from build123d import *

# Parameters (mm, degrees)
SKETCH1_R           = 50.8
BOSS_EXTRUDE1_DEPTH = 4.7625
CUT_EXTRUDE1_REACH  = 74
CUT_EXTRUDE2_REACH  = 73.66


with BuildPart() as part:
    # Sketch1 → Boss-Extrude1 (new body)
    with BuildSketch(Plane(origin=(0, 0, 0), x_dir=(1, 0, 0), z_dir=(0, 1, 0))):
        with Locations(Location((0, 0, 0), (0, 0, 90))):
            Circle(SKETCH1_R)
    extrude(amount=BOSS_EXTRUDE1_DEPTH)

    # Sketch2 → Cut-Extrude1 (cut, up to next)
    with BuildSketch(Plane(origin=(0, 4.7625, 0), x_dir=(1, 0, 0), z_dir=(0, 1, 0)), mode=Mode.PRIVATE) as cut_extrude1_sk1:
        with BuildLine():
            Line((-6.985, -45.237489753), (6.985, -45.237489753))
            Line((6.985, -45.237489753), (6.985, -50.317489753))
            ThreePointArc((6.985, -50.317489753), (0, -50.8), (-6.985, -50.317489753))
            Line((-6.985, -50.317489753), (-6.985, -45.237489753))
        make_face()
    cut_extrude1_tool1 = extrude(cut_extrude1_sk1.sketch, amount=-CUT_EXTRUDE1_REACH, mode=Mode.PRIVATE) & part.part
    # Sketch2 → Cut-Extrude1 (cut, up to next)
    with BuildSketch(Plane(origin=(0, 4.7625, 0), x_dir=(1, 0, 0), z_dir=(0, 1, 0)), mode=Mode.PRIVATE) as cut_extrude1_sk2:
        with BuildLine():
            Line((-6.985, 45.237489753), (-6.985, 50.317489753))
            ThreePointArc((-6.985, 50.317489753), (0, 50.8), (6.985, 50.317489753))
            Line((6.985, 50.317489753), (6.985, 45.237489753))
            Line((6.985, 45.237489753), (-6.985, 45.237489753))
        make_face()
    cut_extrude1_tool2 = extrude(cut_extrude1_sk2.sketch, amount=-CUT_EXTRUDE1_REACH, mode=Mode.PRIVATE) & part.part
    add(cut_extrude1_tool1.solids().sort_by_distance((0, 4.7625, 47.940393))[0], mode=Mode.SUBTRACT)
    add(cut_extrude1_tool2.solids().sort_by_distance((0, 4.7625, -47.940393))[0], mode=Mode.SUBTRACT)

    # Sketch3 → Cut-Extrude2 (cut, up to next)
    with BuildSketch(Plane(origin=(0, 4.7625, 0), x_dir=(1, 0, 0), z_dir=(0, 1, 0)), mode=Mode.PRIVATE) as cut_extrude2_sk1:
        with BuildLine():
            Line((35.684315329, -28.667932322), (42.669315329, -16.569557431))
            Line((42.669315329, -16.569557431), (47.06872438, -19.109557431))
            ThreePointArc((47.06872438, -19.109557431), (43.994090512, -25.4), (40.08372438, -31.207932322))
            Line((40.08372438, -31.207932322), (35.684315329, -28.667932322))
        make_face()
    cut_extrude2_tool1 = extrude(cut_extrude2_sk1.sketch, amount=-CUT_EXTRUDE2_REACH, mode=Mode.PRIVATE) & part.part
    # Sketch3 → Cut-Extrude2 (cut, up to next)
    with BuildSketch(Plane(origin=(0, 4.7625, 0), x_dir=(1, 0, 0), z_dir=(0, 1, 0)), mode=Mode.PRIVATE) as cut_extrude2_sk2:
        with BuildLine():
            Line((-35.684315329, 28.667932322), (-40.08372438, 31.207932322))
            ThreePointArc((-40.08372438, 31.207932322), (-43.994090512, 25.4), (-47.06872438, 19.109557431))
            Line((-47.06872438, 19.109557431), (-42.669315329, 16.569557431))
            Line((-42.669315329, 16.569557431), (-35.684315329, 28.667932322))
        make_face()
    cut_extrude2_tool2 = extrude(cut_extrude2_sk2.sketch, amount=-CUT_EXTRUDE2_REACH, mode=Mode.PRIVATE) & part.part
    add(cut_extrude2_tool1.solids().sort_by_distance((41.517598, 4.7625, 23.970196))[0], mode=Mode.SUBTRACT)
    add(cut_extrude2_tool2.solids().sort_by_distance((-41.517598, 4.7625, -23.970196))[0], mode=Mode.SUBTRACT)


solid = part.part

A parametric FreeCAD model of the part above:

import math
import FreeCAD as App
import Part
import Sketcher
from FreeCAD import Vector
Q = App.Units.Quantity

doc = App.newDocument("Part")
body = doc.addObject("PartDesign::Body", "Body")

# Sketch on XZ plane
sketch1 = body.newObject("Sketcher::SketchObject", "Sketch")
sketch1.AttachmentSupport = (doc.getObject("XZ_Plane"), [""])
sketch1.MapMode = "FlatFace"
sketch1.addGeometry(Part.Circle(Vector(0, 0, 0), Vector(0, 0, 1), 51), False)
sketch1.addConstraint(Sketcher.Constraint("Coincident", 0, 3, -1, 1))
sketch1.addConstraint(Sketcher.Constraint("Diameter", 0, Q("4 in")))
pad1 = body.newObject("PartDesign::Pad", "Pad")
pad1.Profile = sketch1
pad1.Length = Q("0.1875 in")
pad1.Reversed = True

# Sketch on XZ plane
sketch2 = body.newObject("Sketcher::SketchObject", "Sketch001")
sketch2.AttachmentSupport = (doc.getObject("XZ_Plane"), [""])
sketch2.MapMode = "FlatFace"
sketch2.AttachmentOffset = App.Placement(Vector(0, 0, -0.1875 * 25.4), App.Rotation())
sketch2.addGeometry(Part.LineSegment(Vector(7, 45, 0), Vector(-7, 45, 0)), False)
sketch2.addGeometry(Part.LineSegment(Vector(-7, 45, 0), Vector(-7, 50, 0)), False)
sketch2.addGeometry(Part.ArcOfCircle(Part.Circle(Vector(0, 0, 0), Vector(0, 0, 1), 51), math.radians(82.1), math.radians(97.9)), False)
sketch2.addGeometry(Part.LineSegment(Vector(7, 50, 0), Vector(7, 45, 0)), False)
sketch2.addConstraint(Sketcher.Constraint("Coincident", 0, 2, 1, 1))
sketch2.addConstraint(Sketcher.Constraint("Coincident", 1, 2, 2, 2))
sketch2.addConstraint(Sketcher.Constraint("Coincident", 2, 1, 3, 1))
sketch2.addConstraint(Sketcher.Constraint("Coincident", 3, 2, 0, 1))
sketch2.addConstraint(Sketcher.Constraint("Horizontal", 0))
sketch2.addConstraint(Sketcher.Constraint("Vertical", 1))
sketch2.addConstraint(Sketcher.Constraint("Vertical", 3))
sketch2.addConstraint(Sketcher.Constraint("Coincident", 2, 3, -1, 1))
sketch2.addConstraint(Sketcher.Constraint("Horizontal", 1, 2, 2, 1))
sketch2.addConstraint(Sketcher.Constraint("Radius", 2, Q("2 in")))
sketch2.addConstraint(Sketcher.Constraint("DistanceY", 1, 1, 1, 2, Q("0.2 in")))
sketch2.addConstraint(Sketcher.Constraint("DistanceX", 0, 2, 0, 1, Q("0.55 in")))
pocket1 = body.newObject("PartDesign::Pocket", "Pocket")
pocket1.Profile = sketch2
pocket1.Type = "UpToFirst"
pocket1.Reversed = True

# Sketch on XZ plane
sketch3 = body.newObject("Sketcher::SketchObject", "Sketch002")
sketch3.AttachmentSupport = (doc.getObject("XZ_Plane"), [""])
sketch3.MapMode = "FlatFace"
sketch3.AttachmentOffset = App.Placement(Vector(0, 0, -0.1875 * 25.4), App.Rotation())
sketch3.addGeometry(Part.LineSegment(Vector(-7, -50, 0), Vector(-7, -45, 0)), False)
sketch3.addGeometry(Part.LineSegment(Vector(-7, -45, 0), Vector(7, -45, 0)), False)
sketch3.addGeometry(Part.LineSegment(Vector(7, -45, 0), Vector(7, -50, 0)), False)
sketch3.addGeometry(Part.ArcOfCircle(Part.Circle(Vector(0, 0, 0), Vector(0, 0, 1), 51), math.radians(-97.9), math.radians(-82.1)), False)
sketch3.addConstraint(Sketcher.Constraint("Coincident", 0, 2, 1, 1))
sketch3.addConstraint(Sketcher.Constraint("Coincident", 1, 2, 2, 1))
sketch3.addConstraint(Sketcher.Constraint("Coincident", 2, 2, 3, 2))
sketch3.addConstraint(Sketcher.Constraint("Coincident", 3, 1, 0, 1))
sketch3.addConstraint(Sketcher.Constraint("Vertical", 0))
sketch3.addConstraint(Sketcher.Constraint("Horizontal", 1))
sketch3.addConstraint(Sketcher.Constraint("Vertical", 2))
sketch3.addConstraint(Sketcher.Constraint("Coincident", 3, 3, -1, 1))
sketch3.addConstraint(Sketcher.Constraint("Horizontal", 2, 2, 3, 1))
sketch3.addConstraint(Sketcher.Constraint("Radius", 3, Q("2 in")))
sketch3.addConstraint(Sketcher.Constraint("DistanceY", 0, 1, 0, 2, Q("0.2 in")))
sketch3.addConstraint(Sketcher.Constraint("DistanceX", 1, 1, 1, 2, Q("0.55 in")))
pocket2 = body.newObject("PartDesign::Pocket", "Pocket001")
pocket2.Profile = sketch3
pocket2.Type = "UpToFirst"
pocket2.Reversed = True

# Sketch on XZ plane
sketch4 = body.newObject("Sketcher::SketchObject", "Sketch003")
sketch4.AttachmentSupport = (doc.getObject("XZ_Plane"), [""])
sketch4.MapMode = "FlatFace"
sketch4.AttachmentOffset = App.Placement(Vector(0, 0, -0.1875 * 25.4), App.Rotation())
sketch4.addGeometry(Part.LineSegment(Vector(43, 17, 0), Vector(36, 29, 0)), False)
sketch4.addGeometry(Part.LineSegment(Vector(36, 29, 0), Vector(40, 31, 0)), False)
sketch4.addGeometry(Part.ArcOfCircle(Part.Circle(Vector(0, 0, 0), Vector(0, 0, 1), 51), math.radians(22.1), math.radians(37.9)), False)
sketch4.addGeometry(Part.LineSegment(Vector(47, 19, 0), Vector(43, 17, 0)), False)
sketch4.addConstraint(Sketcher.Constraint("Coincident", 0, 2, 1, 1))
sketch4.addConstraint(Sketcher.Constraint("Coincident", 1, 2, 2, 2))
sketch4.addConstraint(Sketcher.Constraint("Coincident", 2, 1, 3, 1))
sketch4.addConstraint(Sketcher.Constraint("Coincident", 3, 2, 0, 1))
sketch4.addConstraint(Sketcher.Constraint("Coincident", 2, 3, -1, 1))
sketch4.addConstraint(Sketcher.Constraint("Perpendicular", 0, 1))
sketch4.addConstraint(Sketcher.Constraint("Parallel", 1, 3))
sketch4.addConstraint(Sketcher.Constraint("Equal", 1, 3))
sketch4.addConstraint(Sketcher.Constraint("Radius", 2, Q("2 in")))
sketch4.addConstraint(Sketcher.Constraint("Angle", 0, Q("120 deg")))
sketch4.addConstraint(Sketcher.Constraint("Distance", 1, Q("0.2 in")))
sketch4.addConstraint(Sketcher.Constraint("Distance", 0, Q("0.55 in")))
pocket3 = body.newObject("PartDesign::Pocket", "Pocket002")
pocket3.Profile = sketch4
pocket3.Type = "UpToFirst"
pocket3.Reversed = True

# Sketch on XZ plane
sketch5 = body.newObject("Sketcher::SketchObject", "Sketch004")
sketch5.AttachmentSupport = (doc.getObject("XZ_Plane"), [""])
sketch5.MapMode = "FlatFace"
sketch5.AttachmentOffset = App.Placement(Vector(0, 0, -0.1875 * 25.4), App.Rotation())
sketch5.addGeometry(Part.LineSegment(Vector(-36, -29, 0), Vector(-40, -31, 0)), False)
sketch5.addGeometry(Part.ArcOfCircle(Part.Circle(Vector(0, 0, 0), Vector(0, 0, 1), 51), math.radians(-157.9), math.radians(-142.1)), False)
sketch5.addGeometry(Part.LineSegment(Vector(-47, -19, 0), Vector(-43, -17, 0)), False)
sketch5.addGeometry(Part.LineSegment(Vector(-43, -17, 0), Vector(-36, -29, 0)), False)
sketch5.addConstraint(Sketcher.Constraint("Coincident", 0, 2, 1, 2))
sketch5.addConstraint(Sketcher.Constraint("Coincident", 1, 1, 2, 1))
sketch5.addConstraint(Sketcher.Constraint("Coincident", 2, 2, 3, 1))
sketch5.addConstraint(Sketcher.Constraint("Coincident", 3, 2, 0, 1))
sketch5.addConstraint(Sketcher.Constraint("Coincident", 1, 3, -1, 1))
sketch5.addConstraint(Sketcher.Constraint("Parallel", 0, 2))
sketch5.addConstraint(Sketcher.Constraint("Perpendicular", 2, 3))
sketch5.addConstraint(Sketcher.Constraint("Equal", 0, 2))
sketch5.addConstraint(Sketcher.Constraint("Radius", 1, Q("2 in")))
sketch5.addConstraint(Sketcher.Constraint("Angle", 0, Q("-150 deg")))
sketch5.addConstraint(Sketcher.Constraint("Distance", 0, Q("0.2 in")))
sketch5.addConstraint(Sketcher.Constraint("Distance", 3, Q("0.55 in")))
pocket4 = body.newObject("PartDesign::Pocket", "Pocket003")
pocket4.Profile = sketch5
pocket4.Type = "UpToFirst"
pocket4.Reversed = True

doc.recompute()
